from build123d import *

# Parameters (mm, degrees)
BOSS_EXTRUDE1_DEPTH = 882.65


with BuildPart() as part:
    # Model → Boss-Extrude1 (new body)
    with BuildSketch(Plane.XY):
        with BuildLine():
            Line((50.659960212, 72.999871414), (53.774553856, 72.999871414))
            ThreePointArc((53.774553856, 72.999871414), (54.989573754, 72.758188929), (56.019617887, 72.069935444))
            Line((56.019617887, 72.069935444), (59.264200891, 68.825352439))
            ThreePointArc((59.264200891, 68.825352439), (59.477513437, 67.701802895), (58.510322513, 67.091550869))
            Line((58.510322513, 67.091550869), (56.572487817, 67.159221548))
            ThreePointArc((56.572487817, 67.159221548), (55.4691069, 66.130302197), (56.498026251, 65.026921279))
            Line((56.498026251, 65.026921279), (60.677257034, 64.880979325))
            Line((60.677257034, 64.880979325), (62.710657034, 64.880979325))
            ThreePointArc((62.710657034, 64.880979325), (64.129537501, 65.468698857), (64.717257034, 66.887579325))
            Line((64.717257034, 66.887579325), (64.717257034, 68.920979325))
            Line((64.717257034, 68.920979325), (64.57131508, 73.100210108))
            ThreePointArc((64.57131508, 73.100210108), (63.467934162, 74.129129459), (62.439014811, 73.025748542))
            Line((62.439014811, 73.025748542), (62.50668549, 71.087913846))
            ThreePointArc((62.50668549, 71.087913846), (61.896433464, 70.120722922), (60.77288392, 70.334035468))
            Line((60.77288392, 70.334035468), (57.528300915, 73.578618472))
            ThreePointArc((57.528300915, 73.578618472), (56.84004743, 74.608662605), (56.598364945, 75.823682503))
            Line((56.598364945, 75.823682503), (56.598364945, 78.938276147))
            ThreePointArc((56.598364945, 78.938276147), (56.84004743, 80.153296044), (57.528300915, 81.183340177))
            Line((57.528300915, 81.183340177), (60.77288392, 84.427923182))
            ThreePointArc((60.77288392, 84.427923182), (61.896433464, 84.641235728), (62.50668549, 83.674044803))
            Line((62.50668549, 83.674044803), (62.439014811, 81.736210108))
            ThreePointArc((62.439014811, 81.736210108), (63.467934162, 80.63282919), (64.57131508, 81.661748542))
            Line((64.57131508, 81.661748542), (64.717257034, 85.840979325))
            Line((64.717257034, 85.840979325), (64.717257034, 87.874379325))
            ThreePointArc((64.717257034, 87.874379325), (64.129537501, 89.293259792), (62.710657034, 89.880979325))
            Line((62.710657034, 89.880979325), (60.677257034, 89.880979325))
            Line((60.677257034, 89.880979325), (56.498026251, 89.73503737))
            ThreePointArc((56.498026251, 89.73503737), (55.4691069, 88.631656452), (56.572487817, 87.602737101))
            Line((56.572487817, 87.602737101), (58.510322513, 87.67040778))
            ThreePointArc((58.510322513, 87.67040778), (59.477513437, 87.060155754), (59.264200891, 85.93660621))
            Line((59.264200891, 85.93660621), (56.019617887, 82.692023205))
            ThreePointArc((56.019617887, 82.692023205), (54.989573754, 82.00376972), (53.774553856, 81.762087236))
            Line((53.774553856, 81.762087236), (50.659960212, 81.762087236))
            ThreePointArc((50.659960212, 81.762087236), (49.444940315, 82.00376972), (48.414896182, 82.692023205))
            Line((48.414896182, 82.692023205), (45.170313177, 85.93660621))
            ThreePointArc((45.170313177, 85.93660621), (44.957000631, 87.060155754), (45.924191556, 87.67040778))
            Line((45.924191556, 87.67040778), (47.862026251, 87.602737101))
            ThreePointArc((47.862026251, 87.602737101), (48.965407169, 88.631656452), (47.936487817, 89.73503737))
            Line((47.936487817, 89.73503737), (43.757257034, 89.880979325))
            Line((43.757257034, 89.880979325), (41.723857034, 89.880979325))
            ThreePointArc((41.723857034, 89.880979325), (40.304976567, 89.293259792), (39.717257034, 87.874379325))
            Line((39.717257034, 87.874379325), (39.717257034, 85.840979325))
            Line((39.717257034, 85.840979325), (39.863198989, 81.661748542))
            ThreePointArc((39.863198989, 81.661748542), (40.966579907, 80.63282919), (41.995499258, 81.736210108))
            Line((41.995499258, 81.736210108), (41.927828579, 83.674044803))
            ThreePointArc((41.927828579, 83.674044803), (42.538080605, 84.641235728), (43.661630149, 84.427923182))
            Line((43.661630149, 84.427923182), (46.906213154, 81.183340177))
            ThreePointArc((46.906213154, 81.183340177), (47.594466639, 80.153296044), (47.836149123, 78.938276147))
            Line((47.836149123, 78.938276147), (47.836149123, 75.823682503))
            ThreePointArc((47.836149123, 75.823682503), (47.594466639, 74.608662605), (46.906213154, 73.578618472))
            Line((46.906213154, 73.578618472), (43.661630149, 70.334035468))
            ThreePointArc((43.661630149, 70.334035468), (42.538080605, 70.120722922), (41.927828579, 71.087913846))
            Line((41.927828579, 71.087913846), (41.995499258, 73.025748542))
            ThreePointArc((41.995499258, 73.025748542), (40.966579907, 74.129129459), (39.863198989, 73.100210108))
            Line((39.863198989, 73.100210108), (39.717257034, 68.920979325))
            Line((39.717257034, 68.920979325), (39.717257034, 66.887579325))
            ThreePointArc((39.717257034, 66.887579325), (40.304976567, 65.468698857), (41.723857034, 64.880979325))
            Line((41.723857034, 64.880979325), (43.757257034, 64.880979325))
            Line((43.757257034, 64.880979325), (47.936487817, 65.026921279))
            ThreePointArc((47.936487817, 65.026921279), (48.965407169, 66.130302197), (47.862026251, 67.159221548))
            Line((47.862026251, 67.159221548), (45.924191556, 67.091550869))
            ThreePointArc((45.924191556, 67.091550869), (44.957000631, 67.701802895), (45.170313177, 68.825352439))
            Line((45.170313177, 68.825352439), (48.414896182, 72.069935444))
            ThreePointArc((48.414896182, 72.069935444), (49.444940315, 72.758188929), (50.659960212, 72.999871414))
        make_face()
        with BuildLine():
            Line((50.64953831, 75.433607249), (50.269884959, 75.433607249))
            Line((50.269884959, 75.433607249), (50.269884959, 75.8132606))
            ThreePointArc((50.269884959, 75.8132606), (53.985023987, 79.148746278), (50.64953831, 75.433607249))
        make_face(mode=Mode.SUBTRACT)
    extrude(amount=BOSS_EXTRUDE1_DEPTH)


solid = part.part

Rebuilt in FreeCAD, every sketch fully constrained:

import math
import FreeCAD as App
import Part
import Sketcher
Q = App.Units.Quantity

doc = App.newDocument("Part")
body = doc.addObject("PartDesign::Body", "Body")

sketch1 = body.newObject("Sketcher::SketchObject", "Sketch")
sketch1.AttachmentSupport = (doc.getObject("XY_Plane"), [""])
sketch1.MapMode = "FlatFace"
sketch1.addGeometry(Part.LineSegment(App.Vector(50.65996, 72.999871, 0), App.Vector(53.774554, 72.999871, 0)), False)
sketch1.addGeometry(Part.ArcOfCircle(Part.Circle(App.Vector(53.774554, 69.824871, 0), App.Vector(0, 0, 1), 3.175), math.radians(45), math.radians(90)), False)
sketch1.addGeometry(Part.LineSegment(App.Vector(56.019618, 72.069935, 0), App.Vector(59.264201, 68.825352, 0)), False)
sketch1.addGeometry(Part.ArcOfCircle(Part.Circle(App.Vector(58.54578, 68.106932, 0), App.Vector(0, 0, 1), 1.016), math.radians(-92), math.radians(45)), False)
sketch1.addGeometry(Part.LineSegment(App.Vector(58.510323, 67.091551, 0), App.Vector(56.572488, 67.159222, 0)), False)
sketch1.addGeometry(Part.ArcOfCircle(Part.Circle(App.Vector(56.535257, 66.093071, 0), App.Vector(0, 0, 1), 1.0668), math.radians(88), math.radians(268)), False)
sketch1.addGeometry(Part.LineSegment(App.Vector(56.498026, 65.026921, 0), App.Vector(60.677257, 64.880979, 0)), False)
sketch1.addGeometry(Part.LineSegment(App.Vector(60.677257, 64.880979, 0), App.Vector(62.710657, 64.880979, 0)), False)
sketch1.addGeometry(Part.ArcOfCircle(Part.Circle(App.Vector(62.710657, 66.887579, 0), App.Vector(0, 0, 1), 2.0066), math.radians(-90), math.radians(0)), False)
sketch1.addGeometry(Part.LineSegment(App.Vector(64.717257, 66.887579, 0), App.Vector(64.717257, 68.920979, 0)), False)
sketch1.addGeometry(Part.LineSegment(App.Vector(64.717257, 68.920979, 0), App.Vector(64.571315, 73.10021, 0)), False)
sketch1.addGeometry(Part.ArcOfCircle(Part.Circle(App.Vector(63.505165, 73.062979, 0), App.Vector(0, 0, 1), 1.0668), math.radians(2), math.radians(182)), False)
sketch1.addGeometry(Part.LineSegment(App.Vector(62.439015, 73.025749, 0), App.Vector(62.506685, 71.087914, 0)), False)
sketch1.addGeometry(Part.ArcOfCircle(Part.Circle(App.Vector(61.491304, 71.052456, 0), App.Vector(0, 0, 1), 1.016), math.radians(-135), math.radians(2)), False)
sketch1.addGeometry(Part.LineSegment(App.Vector(60.772884, 70.334035, 0), App.Vector(57.528301, 73.578618, 0)), False)
sketch1.addGeometry(Part.ArcOfCircle(Part.Circle(App.Vector(59.773365, 75.823683, 0), App.Vector(0, 0, 1), 3.175), math.radians(-180), math.radians(-135)), False)
sketch1.addGeometry(Part.LineSegment(App.Vector(56.598365, 75.823683, 0), App.Vector(56.598365, 78.938276, 0)), False)
sketch1.addGeometry(Part.ArcOfCircle(Part.Circle(App.Vector(59.773365, 78.938276, 0), App.Vector(0, 0, 1), 3.175), math.radians(135), math.radians(180)), False)
sketch1.addGeometry(Part.LineSegment(App.Vector(57.528301, 81.18334, 0), App.Vector(60.772884, 84.427923, 0)), False)
sketch1.addGeometry(Part.ArcOfCircle(Part.Circle(App.Vector(61.491304, 83.709503, 0), App.Vector(0, 0, 1), 1.016), math.radians(-2), math.radians(135)), False)
sketch1.addGeometry(Part.LineSegment(App.Vector(62.506685, 83.674045, 0), App.Vector(62.439015, 81.73621, 0)), False)
sketch1.addGeometry(Part.ArcOfCircle(Part.Circle(App.Vector(63.505165, 81.698979, 0), App.Vector(0, 0, 1), 1.0668), math.radians(178), math.radians(358)), False)
sketch1.addGeometry(Part.LineSegment(App.Vector(64.571315, 81.661749, 0), App.Vector(64.717257, 85.840979, 0)), False)
sketch1.addGeometry(Part.LineSegment(App.Vector(64.717257, 85.840979, 0), App.Vector(64.717257, 87.874379, 0)), False)
sketch1.addGeometry(Part.ArcOfCircle(Part.Circle(App.Vector(62.710657, 87.874379, 0), App.Vector(0, 0, 1), 2.0066), math.radians(0), math.radians(90)), False)
sketch1.addGeometry(Part.LineSegment(App.Vector(62.710657, 89.880979, 0), App.Vector(60.677257, 89.880979, 0)), False)
sketch1.addGeometry(Part.LineSegment(App.Vector(60.677257, 89.880979, 0), App.Vector(56.498026, 89.735037, 0)), False)
sketch1.addGeometry(Part.ArcOfCircle(Part.Circle(App.Vector(56.535257, 88.668887, 0), App.Vector(0, 0, 1), 1.0668), math.radians(92), math.radians(272)), False)
sketch1.addGeometry(Part.LineSegment(App.Vector(56.572488, 87.602737, 0), App.Vector(58.510323, 87.670408, 0)), False)
sketch1.addGeometry(Part.ArcOfCircle(Part.Circle(App.Vector(58.54578, 86.655027, 0), App.Vector(0, 0, 1), 1.016), math.radians(-45), math.radians(92)), False)
sketch1.addGeometry(Part.LineSegment(App.Vector(59.264201, 85.936606, 0), App.Vector(56.019618, 82.692023, 0)), False)
sketch1.addGeometry(Part.ArcOfCircle(Part.Circle(App.Vector(53.774554, 84.937087, 0), App.Vector(0, 0, 1), 3.175), math.radians(-90), math.radians(-45)), False)
sketch1.addGeometry(Part.LineSegment(App.Vector(53.774554, 81.762087, 0), App.Vector(50.65996, 81.762087, 0)), False)
sketch1.addGeometry(Part.ArcOfCircle(Part.Circle(App.Vector(50.65996, 84.937087, 0), App.Vector(0, 0, 1), 3.175), math.radians(-135), math.radians(-90)), False)
sketch1.addGeometry(Part.LineSegment(App.Vector(48.414896, 82.692023, 0), App.Vector(45.170313, 85.936606, 0)), False)
sketch1.addGeometry(Part.ArcOfCircle(Part.Circle(App.Vector(45.888734, 86.655027, 0), App.Vector(0, 0, 1), 1.016), math.radians(88), math.radians(225)), False)
sketch1.addGeometry(Part.LineSegment(App.Vector(45.924192, 87.670408, 0), App.Vector(47.862026, 87.602737, 0)), False)
sketch1.addGeometry(Part.ArcOfCircle(Part.Circle(App.Vector(47.899257, 88.668887, 0), App.Vector(0, 0, 1), 1.0668), math.radians(-92), math.radians(88)), False)
sketch1.addGeometry(Part.LineSegment(App.Vector(47.936488, 89.735037, 0), App.Vector(43.757257, 89.880979, 0)), False)
sketch1.addGeometry(Part.LineSegment(App.Vector(43.757257, 89.880979, 0), App.Vector(41.723857, 89.880979, 0)), False)
sketch1.addGeometry(Part.ArcOfCircle(Part.Circle(App.Vector(41.723857, 87.874379, 0), App.Vector(0, 0, 1), 2.0066), math.radians(90), math.radians(180)), False)
sketch1.addGeometry(Part.LineSegment(App.Vector(39.717257, 87.874379, 0), App.Vector(39.717257, 85.840979, 0)), False)
sketch1.addGeometry(Part.LineSegment(App.Vector(39.717257, 85.840979, 0), App.Vector(39.863199, 81.661749, 0)), False)
sketch1.addGeometry(Part.ArcOfCircle(Part.Circle(App.Vector(40.929349, 81.698979, 0), App.Vector(0, 0, 1), 1.0668), math.radians(-178), math.radians(2)), False)
sketch1.addGeometry(Part.LineSegment(App.Vector(41.995499, 81.73621, 0), App.Vector(41.927829, 83.674045, 0)), False)
sketch1.addGeometry(Part.ArcOfCircle(Part.Circle(App.Vector(42.94321, 83.709503, 0), App.Vector(0, 0, 1), 1.016), math.radians(45), math.radians(182)), False)
sketch1.addGeometry(Part.LineSegment(App.Vector(43.66163, 84.427923, 0), App.Vector(46.906213, 81.18334, 0)), False)
sketch1.addGeometry(Part.ArcOfCircle(Part.Circle(App.Vector(44.661149, 78.938276, 0), App.Vector(0, 0, 1), 3.175), math.radians(0), math.radians(45)), False)
sketch1.addGeometry(Part.LineSegment(App.Vector(47.836149, 78.938276, 0), App.Vector(47.836149, 75.823683, 0)), False)
sketch1.addGeometry(Part.ArcOfCircle(Part.Circle(App.Vector(44.661149, 75.823683, 0), App.Vector(0, 0, 1), 3.175), math.radians(-45), math.radians(0)), False)
sketch1.addGeometry(Part.LineSegment(App.Vector(46.906213, 73.578618, 0), App.Vector(43.66163, 70.334035, 0)), False)
sketch1.addGeometry(Part.ArcOfCircle(Part.Circle(App.Vector(42.94321, 71.052456, 0), App.Vector(0, 0, 1), 1.016), math.radians(178), math.radians(315)), False)
sketch1.addGeometry(Part.LineSegment(App.Vector(41.927829, 71.087914, 0), App.Vector(41.995499, 73.025749, 0)), False)
sketch1.addGeometry(Part.ArcOfCircle(Part.Circle(App.Vector(40.929349, 73.062979, 0), App.Vector(0, 0, 1), 1.0668), math.radians(-2), math.radians(178)), False)
sketch1.addGeometry(Part.LineSegment(App.Vector(39.863199, 73.10021, 0), App.Vector(39.717257, 68.920979, 0)), False)
sketch1.addGeometry(Part.LineSegment(App.Vector(39.717257, 68.920979, 0), App.Vector(39.717257, 66.887579, 0)), False)
sketch1.addGeometry(Part.ArcOfCircle(Part.Circle(App.Vector(41.723857, 66.887579, 0), App.Vector(0, 0, 1), 2.0066), math.radians(180), math.radians(270)), False)
sketch1.addGeometry(Part.LineSegment(App.Vector(41.723857, 64.880979, 0), App.Vector(43.757257, 64.880979, 0)), False)
sketch1.addGeometry(Part.LineSegment(App.Vector(43.757257, 64.880979, 0), App.Vector(47.936488, 65.026921, 0)), False)
sketch1.addGeometry(Part.ArcOfCircle(Part.Circle(App.Vector(47.899257, 66.093071, 0), App.Vector(0, 0, 1), 1.0668), math.radians(-88), math.radians(92)), False)
sketch1.addGeometry(Part.LineSegment(App.Vector(47.862026, 67.159222, 0), App.Vector(45.924192, 67.091551, 0)), False)
sketch1.addGeometry(Part.ArcOfCircle(Part.Circle(App.Vector(45.888734, 68.106932, 0), App.Vector(0, 0, 1), 1.016), math.radians(135), math.radians(272)), False)
sketch1.addGeometry(Part.LineSegment(App.Vector(45.170313, 68.825352, 0), App.Vector(48.414896, 72.069935, 0)), False)
sketch1.addGeometry(Part.ArcOfCircle(Part.Circle(App.Vector(50.65996, 69.824871, 0), App.Vector(0, 0, 1), 3.175), math.radians(90), math.radians(135)), False)
sketch1.addGeometry(Part.ArcOfCircle(Part.Circle(App.Vector(52.217257, 77.380979, 0), App.Vector(0, 0, 1), 2.5), math.radians(-128.835568), math.radians(218.835568)), False)
sketch1.addGeometry(Part.LineSegment(App.Vector(50.649538, 75.433607, 0), App.Vector(50.269885, 75.433607, 0)), False)
sketch1.addGeometry(Part.LineSegment(App.Vector(50.269885, 75.433607, 0), App.Vector(50.269885, 75.813261, 0)), False)
sketch1.addConstraint(Sketcher.Constraint("Tangent", 0, 2, 1, 2))
sketch1.addConstraint(Sketcher.Constraint("Tangent", 1, 1, 2, 1))
sketch1.addConstraint(Sketcher.Constraint("Tangent", 2, 2, 3, 2))
sketch1.addConstraint(Sketcher.Constraint("Tangent", 3, 1, 4, 1))
sketch1.addConstraint(Sketcher.Constraint("Tangent", 4, 2, 5, 1))
sketch1.addConstraint(Sketcher.Constraint("Tangent", 5, 2, 6, 1))
sketch1.addConstraint(Sketcher.Constraint("Coincident", 6, 2, 7, 1))
sketch1.addConstraint(Sketcher.Constraint("Tangent", 7, 2, 8, 1))
sketch1.addConstraint(Sketcher.Constraint("Tangent", 8, 2, 9, 1))
sketch1.addConstraint(Sketcher.Constraint("Coincident", 9, 2, 10, 1))
sketch1.addConstraint(Sketcher.Constraint("Tangent", 10, 2, 11, 1))
sketch1.addConstraint(Sketcher.Constraint("Tangent", 11, 2, 12, 1))
sketch1.addConstraint(Sketcher.Constraint("Tangent", 12, 2, 13, 2))
sketch1.addConstraint(Sketcher.Constraint("Tangent", 13, 1, 14, 1))
sketch1.addConstraint(Sketcher.Constraint("Tangent", 14, 2, 15, 2))
sketch1.addConstraint(Sketcher.Constraint("Tangent", 15, 1, 16, 1))
sketch1.addConstraint(Sketcher.Constraint("Tangent", 16, 2, 17, 2))
sketch1.addConstraint(Sketcher.Constraint("Tangent", 17, 1, 18, 1))
sketch1.addConstraint(Sketcher.Constraint("Tangent", 18, 2, 19, 2))
sketch1.addConstraint(Sketcher.Constraint("Tangent", 19, 1, 20, 1))
sketch1.addConstraint(Sketcher.Constraint("Tangent", 20, 2, 21, 1))
sketch1.addConstraint(Sketcher.Constraint("Tangent", 21, 2, 22, 1))
sketch1.addConstraint(Sketcher.Constraint("Coincident", 22, 2, 23, 1))
sketch1.addConstraint(Sketcher.Constraint("Tangent", 23, 2, 24, 1))
sketch1.addConstraint(Sketcher.Constraint("Tangent", 24, 2, 25, 1))
sketch1.addConstraint(Sketcher.Constraint("Coincident", 25, 2, 26, 1))
sketch1.addConstraint(Sketcher.Constraint("Tangent", 26, 2, 27, 1))
sketch1.addConstraint(Sketcher.Constraint("Tangent", 27, 2, 28, 1))
sketch1.addConstraint(Sketcher.Constraint("Tangent", 28, 2, 29, 2))
sketch1.addConstraint(Sketcher.Constraint("Tangent", 29, 1, 30, 1))
sketch1.addConstraint(Sketcher.Constraint("Tangent", 30, 2, 31, 2))
sketch1.addConstraint(Sketcher.Constraint("Tangent", 31, 1, 32, 1))
sketch1.addConstraint(Sketcher.Constraint("Tangent", 32, 2, 33, 2))
sketch1.addConstraint(Sketcher.Constraint("Tangent", 33, 1, 34, 1))
sketch1.addConstraint(Sketcher.Constraint("Tangent", 34, 2, 35, 2))
sketch1.addConstraint(Sketcher.Constraint("Tangent", 35, 1, 36, 1))
sketch1.addConstraint(Sketcher.Constraint("Tangent", 36, 2, 37, 1))
sketch1.addConstraint(Sketcher.Constraint("Tangent", 37, 2, 38, 1))
sketch1.addConstraint(Sketcher.Constraint("Coincident", 38, 2, 39, 1))
sketch1.addConstraint(Sketcher.Constraint("Tangent", 39, 2, 40, 1))
sketch1.addConstraint(Sketcher.Constraint("Tangent", 40, 2, 41, 1))
sketch1.addConstraint(Sketcher.Constraint("Coincident", 41, 2, 42, 1))
sketch1.addConstraint(Sketcher.Constraint("Tangent", 42, 2, 43, 1))
sketch1.addConstraint(Sketcher.Constraint("Tangent", 43, 2, 44, 1))
sketch1.addConstraint(Sketcher.Constraint("Tangent", 44, 2, 45, 2))
sketch1.addConstraint(Sketcher.Constraint("Tangent", 45, 1, 46, 1))
sketch1.addConstraint(Sketcher.Constraint("Tangent", 46, 2, 47, 2))
sketch1.addConstraint(Sketcher.Constraint("Tangent", 47, 1, 48, 1))
sketch1.addConstraint(Sketcher.Constraint("Tangent", 48, 2, 49, 2))
sketch1.addConstraint(Sketcher.Constraint("Tangent", 49, 1, 50, 1))
sketch1.addConstraint(Sketcher.Constraint("Tangent", 50, 2, 51, 2))
sketch1.addConstraint(Sketcher.Constraint("Tangent", 51, 1, 52, 1))
sketch1.addConstraint(Sketcher.Constraint("Tangent", 52, 2, 53, 1))
sketch1.addConstraint(Sketcher.Constraint("Tangent", 53, 2, 54, 1))
sketch1.addConstraint(Sketcher.Constraint("Coincident", 54, 2, 55, 1))
sketch1.addConstraint(Sketcher.Constraint("Tangent", 55, 2, 56, 1))
sketch1.addConstraint(Sketcher.Constraint("Tangent", 56, 2, 57, 1))
sketch1.addConstraint(Sketcher.Constraint("Coincident", 57, 2, 58, 1))
sketch1.addConstraint(Sketcher.Constraint("Tangent", 58, 2, 59, 1))
sketch1.addConstraint(Sketcher.Constraint("Tangent", 59, 2, 60, 1))
sketch1.addConstraint(Sketcher.Constraint("Tangent", 60, 2, 61, 2))
sketch1.addConstraint(Sketcher.Constraint("Tangent", 61, 1, 62, 1))
sketch1.addConstraint(Sketcher.Constraint("Tangent", 62, 2, 63, 2))
sketch1.addConstraint(Sketcher.Constraint("Tangent", 63, 1, 0, 1))
sketch1.addConstraint(Sketcher.Constraint("Coincident", 64, 1, 65, 1))
sketch1.addConstraint(Sketcher.Constraint("Coincident", 65, 2, 66, 1))
sketch1.addConstraint(Sketcher.Constraint("Coincident", 66, 2, 64, 2))
sketch1.addConstraint(Sketcher.Constraint("Horizontal", 0))
sketch1.addConstraint(Sketcher.Constraint("Horizontal", 7))
sketch1.addConstraint(Sketcher.Constraint("Vertical", 9))
sketch1.addConstraint(Sketcher.Constraint("Vertical", 16))
sketch1.addConstraint(Sketcher.Constraint("Vertical", 23))
sketch1.addConstraint(Sketcher.Constraint("Horizontal", 25))
sketch1.addConstraint(Sketcher.Constraint("Horizontal", 32))
sketch1.addConstraint(Sketcher.Constraint("Horizontal", 39))
sketch1.addConstraint(Sketcher.Constraint("Vertical", 41))
sketch1.addConstraint(Sketcher.Constraint("Vertical", 48))
sketch1.addConstraint(Sketcher.Constraint("Vertical", 55))
sketch1.addConstraint(Sketcher.Constraint("Horizontal", 57))
sketch1.addConstraint(Sketcher.Constraint("Horizontal", 65))
sketch1.addConstraint(Sketcher.Constraint("Vertical", 66))
sketch1.addConstraint(Sketcher.Constraint("Equal", 5, 11))
sketch1.addConstraint(Sketcher.Constraint("Equal", 3, 13))
sketch1.addConstraint(Sketcher.Constraint("Equal", 1, 15))
sketch1.addConstraint(Sketcher.Constraint("Equal", 15, 17))
sketch1.addConstraint(Sketcher.Constraint("Equal", 13, 19))
sketch1.addConstraint(Sketcher.Constraint("Equal", 11, 21))
sketch1.addConstraint(Sketcher.Constraint("Equal", 8, 24))
sketch1.addConstraint(Sketcher.Constraint("Equal", 21, 27))
sketch1.addConstraint(Sketcher.Constraint("Equal", 19, 29))
sketch1.addConstraint(Sketcher.Constraint("Equal", 17, 31))
sketch1.addConstraint(Sketcher.Constraint("Equal", 31, 33))
sketch1.addConstraint(Sketcher.Constraint("Equal", 29, 35))
sketch1.addConstraint(Sketcher.Constraint("Equal", 27, 37))
sketch1.addConstraint(Sketcher.Constraint("Equal", 24, 40))
sketch1.addConstraint(Sketcher.Constraint("Equal", 37, 43))
sketch1.addConstraint(Sketcher.Constraint("Equal", 35, 45))
sketch1.addConstraint(Sketcher.Constraint("Equal", 33, 47))
sketch1.addConstraint(Sketcher.Constraint("Equal", 47, 49))
sketch1.addConstraint(Sketcher.Constraint("Equal", 45, 51))
sketch1.addConstraint(Sketcher.Constraint("Equal", 43, 53))
sketch1.addConstraint(Sketcher.Constraint("Equal", 40, 56))
sketch1.addConstraint(Sketcher.Constraint("Equal", 53, 59))
sketch1.addConstraint(Sketcher.Constraint("Equal", 51, 61))
sketch1.addConstraint(Sketcher.Constraint("Equal", 49, 63))
sketch1.addConstraint(Sketcher.Constraint("Parallel", 4, 6))
sketch1.addConstraint(Sketcher.Constraint("Parallel", 10, 12))
sketch1.addConstraint(Sketcher.Constraint("Parallel", 2, 14))
sketch1.addConstraint(Sketcher.Constraint("Perpendicular", 14, 18))
sketch1.addConstraint(Sketcher.Constraint("Perpendicular", 6, 20))
sketch1.addConstraint(Sketcher.Constraint("Parallel", 20, 22))
sketch1.addConstraint(Sketcher.Constraint("Perpendicular", 12, 26))
sketch1.addConstraint(Sketcher.Constraint("Parallel", 26, 28))
sketch1.addConstraint(Sketcher.Constraint("Parallel", 18, 30))
sketch1.addConstraint(Sketcher.Constraint("Perpendicular", 30, 34))
sketch1.addConstraint(Sketcher.Constraint("Perpendicular", 22, 36))
sketch1.addConstraint(Sketcher.Constraint("Parallel", 36, 38))
sketch1.addConstraint(Sketcher.Constraint("Perpendicular", 28, 42))
sketch1.addConstraint(Sketcher.Constraint("Parallel", 42, 44))
sketch1.addConstraint(Sketcher.Constraint("Parallel", 34, 46))
sketch1.addConstraint(Sketcher.Constraint("Perpendicular", 46, 50))
sketch1.addConstraint(Sketcher.Constraint("Perpendicular", 38, 52))
sketch1.addConstraint(Sketcher.Constraint("Parallel", 52, 54))
sketch1.addConstraint(Sketcher.Constraint("Perpendicular", 44, 58))
sketch1.addConstraint(Sketcher.Constraint("Parallel", 58, 60))
sketch1.addConstraint(Sketcher.Constraint("Parallel", 50, 62))
sketch1.addConstraint(Sketcher.Constraint("Horizontal", 29, 3, 35, 3))
sketch1.addConstraint(Sketcher.Constraint("Horizontal", 27, 3, 37, 3))
sketch1.addConstraint(Sketcher.Constraint("Horizontal", 24, 3, 40, 3))
sketch1.addConstraint(Sketcher.Constraint("Horizontal", 21, 3, 43, 3))
sketch1.addConstraint(Sketcher.Constraint("Horizontal", 19, 3, 45, 3))
sketch1.addConstraint(Sketcher.Constraint("Horizontal", 17, 3, 47, 3))
sketch1.addConstraint(Sketcher.Constraint("Horizontal", 15, 3, 49, 3))
sketch1.addConstraint(Sketcher.Constraint("Horizontal", 13, 3, 51, 3))
sketch1.addConstraint(Sketcher.Constraint("Horizontal", 11, 3, 53, 3))
sketch1.addConstraint(Sketcher.Constraint("Horizontal", 8, 3, 56, 3))
sketch1.addConstraint(Sketcher.Constraint("Horizontal", 5, 3, 59, 3))
sketch1.addConstraint(Sketcher.Constraint("Horizontal", 3, 3, 61, 3))
sketch1.addConstraint(Sketcher.Constraint("Horizontal", 30, 2, 33, 1))
sketch1.addConstraint(Sketcher.Constraint("Horizontal", 22, 2, 41, 2))
sketch1.addConstraint(Sketcher.Constraint("Horizontal", 21, 2, 42, 2))
sketch1.addConstraint(Sketcher.Constraint("Horizontal", 9, 2, 54, 2))
sketch1.addConstraint(Sketcher.Constraint("Vertical", 13, 3, 19, 3))
sketch1.addConstraint(Sketcher.Constraint("Vertical", 11, 3, 21, 3))
sketch1.addConstraint(Sketcher.Constraint("Vertical", 8, 3, 24, 3))
sketch1.addConstraint(Sketcher.Constraint("Vertical", 5, 3, 27, 3))
sketch1.addConstraint(Sketcher.Constraint("Vertical", 3, 3, 29, 3))
sketch1.addConstraint(Sketcher.Constraint("Vertical", 1, 3, 31, 3))
sketch1.addConstraint(Sketcher.Constraint("Vertical", 37, 3, 59, 3))
sketch1.addConstraint(Sketcher.Constraint("Vertical", 6, 2, 25, 2))
sketch1.addConstraint(Sketcher.Constraint("Equal", 25, 39))
sketch1.addConstraint(Sketcher.Constraint("Equal", 57, 9))
sketch1.addConstraint(Sketcher.Constraint("Equal", 32, 16))
sketch1.addConstraint(Sketcher.Constraint("Equal", 9, 23))
sketch1.addConstraint(Sketcher.Constraint("Equal", 65, 66))
sketch1.addConstraint(Sketcher.Constraint("Equal", 6, 10))
sketch1.addConstraint(Sketcher.Constraint("Equal", 4, 12))
sketch1.addConstraint(Sketcher.Constraint("Equal", 2, 14))
sketch1.addConstraint(Sketcher.Constraint("Radius", 3, Q("0.04 in")))
sketch1.addConstraint(Sketcher.Constraint("Angle", 4, Q("178 deg")))
sketch1.addConstraint(Sketcher.Constraint("Radius", 1, Q("0.125 in")))
sketch1.addConstraint(Sketcher.Constraint("Radius", 5, Q("0.042 in")))
sketch1.addConstraint(Sketcher.Constraint("Radius", 8, Q("0.079 in")))
sketch1.addConstraint(Sketcher.Constraint("Radius", 64, Q("2.5 mm")))
sketch1.addConstraint(Sketcher.Constraint("DistanceX", 7, 1, 7, 2, Q("2.0334 mm")))
sketch1.addConstraint(Sketcher.Constraint("DistanceX", -1, 1, 2, 2, Q("59.264201 mm")))
sketch1.addConstraint(Sketcher.Constraint("DistanceX", -1, 1, 14, 2, Q("57.528301 mm")))
sketch1.addConstraint(Sketcher.Constraint("DistanceX", -1, 1, 42, 2, Q("39.863199 mm")))
sketch1.addConstraint(Sketcher.Constraint("Distance", 6, Q("4.181778 mm")))
sketch1.addConstraint(Sketcher.Constraint("DistanceX", 0, 1, 0, 2, Q("3.114594 mm")))
sketch1.addConstraint(Sketcher.Constraint("DistanceX", 65, 2, 65, 1, Q("0.379653 mm")))
sketch1.addConstraint(Sketcher.Constraint("DistanceY", -1, 1, 1, 3, Q("69.824871 mm")))
sketch1.addConstraint(Sketcher.Constraint("DistanceY", -1, 1, 64, 3, Q("77.380979 mm")))
sketch1.addConstraint(Sketcher.Constraint("DistanceX", -1, 1, 64, 1, Q("50.649538 mm")))
pad1 = body.newObject("PartDesign::Pad", "Pad")
pad1.Profile = sketch1
pad1.Length = Q("34.75 in")

doc.recompute()
